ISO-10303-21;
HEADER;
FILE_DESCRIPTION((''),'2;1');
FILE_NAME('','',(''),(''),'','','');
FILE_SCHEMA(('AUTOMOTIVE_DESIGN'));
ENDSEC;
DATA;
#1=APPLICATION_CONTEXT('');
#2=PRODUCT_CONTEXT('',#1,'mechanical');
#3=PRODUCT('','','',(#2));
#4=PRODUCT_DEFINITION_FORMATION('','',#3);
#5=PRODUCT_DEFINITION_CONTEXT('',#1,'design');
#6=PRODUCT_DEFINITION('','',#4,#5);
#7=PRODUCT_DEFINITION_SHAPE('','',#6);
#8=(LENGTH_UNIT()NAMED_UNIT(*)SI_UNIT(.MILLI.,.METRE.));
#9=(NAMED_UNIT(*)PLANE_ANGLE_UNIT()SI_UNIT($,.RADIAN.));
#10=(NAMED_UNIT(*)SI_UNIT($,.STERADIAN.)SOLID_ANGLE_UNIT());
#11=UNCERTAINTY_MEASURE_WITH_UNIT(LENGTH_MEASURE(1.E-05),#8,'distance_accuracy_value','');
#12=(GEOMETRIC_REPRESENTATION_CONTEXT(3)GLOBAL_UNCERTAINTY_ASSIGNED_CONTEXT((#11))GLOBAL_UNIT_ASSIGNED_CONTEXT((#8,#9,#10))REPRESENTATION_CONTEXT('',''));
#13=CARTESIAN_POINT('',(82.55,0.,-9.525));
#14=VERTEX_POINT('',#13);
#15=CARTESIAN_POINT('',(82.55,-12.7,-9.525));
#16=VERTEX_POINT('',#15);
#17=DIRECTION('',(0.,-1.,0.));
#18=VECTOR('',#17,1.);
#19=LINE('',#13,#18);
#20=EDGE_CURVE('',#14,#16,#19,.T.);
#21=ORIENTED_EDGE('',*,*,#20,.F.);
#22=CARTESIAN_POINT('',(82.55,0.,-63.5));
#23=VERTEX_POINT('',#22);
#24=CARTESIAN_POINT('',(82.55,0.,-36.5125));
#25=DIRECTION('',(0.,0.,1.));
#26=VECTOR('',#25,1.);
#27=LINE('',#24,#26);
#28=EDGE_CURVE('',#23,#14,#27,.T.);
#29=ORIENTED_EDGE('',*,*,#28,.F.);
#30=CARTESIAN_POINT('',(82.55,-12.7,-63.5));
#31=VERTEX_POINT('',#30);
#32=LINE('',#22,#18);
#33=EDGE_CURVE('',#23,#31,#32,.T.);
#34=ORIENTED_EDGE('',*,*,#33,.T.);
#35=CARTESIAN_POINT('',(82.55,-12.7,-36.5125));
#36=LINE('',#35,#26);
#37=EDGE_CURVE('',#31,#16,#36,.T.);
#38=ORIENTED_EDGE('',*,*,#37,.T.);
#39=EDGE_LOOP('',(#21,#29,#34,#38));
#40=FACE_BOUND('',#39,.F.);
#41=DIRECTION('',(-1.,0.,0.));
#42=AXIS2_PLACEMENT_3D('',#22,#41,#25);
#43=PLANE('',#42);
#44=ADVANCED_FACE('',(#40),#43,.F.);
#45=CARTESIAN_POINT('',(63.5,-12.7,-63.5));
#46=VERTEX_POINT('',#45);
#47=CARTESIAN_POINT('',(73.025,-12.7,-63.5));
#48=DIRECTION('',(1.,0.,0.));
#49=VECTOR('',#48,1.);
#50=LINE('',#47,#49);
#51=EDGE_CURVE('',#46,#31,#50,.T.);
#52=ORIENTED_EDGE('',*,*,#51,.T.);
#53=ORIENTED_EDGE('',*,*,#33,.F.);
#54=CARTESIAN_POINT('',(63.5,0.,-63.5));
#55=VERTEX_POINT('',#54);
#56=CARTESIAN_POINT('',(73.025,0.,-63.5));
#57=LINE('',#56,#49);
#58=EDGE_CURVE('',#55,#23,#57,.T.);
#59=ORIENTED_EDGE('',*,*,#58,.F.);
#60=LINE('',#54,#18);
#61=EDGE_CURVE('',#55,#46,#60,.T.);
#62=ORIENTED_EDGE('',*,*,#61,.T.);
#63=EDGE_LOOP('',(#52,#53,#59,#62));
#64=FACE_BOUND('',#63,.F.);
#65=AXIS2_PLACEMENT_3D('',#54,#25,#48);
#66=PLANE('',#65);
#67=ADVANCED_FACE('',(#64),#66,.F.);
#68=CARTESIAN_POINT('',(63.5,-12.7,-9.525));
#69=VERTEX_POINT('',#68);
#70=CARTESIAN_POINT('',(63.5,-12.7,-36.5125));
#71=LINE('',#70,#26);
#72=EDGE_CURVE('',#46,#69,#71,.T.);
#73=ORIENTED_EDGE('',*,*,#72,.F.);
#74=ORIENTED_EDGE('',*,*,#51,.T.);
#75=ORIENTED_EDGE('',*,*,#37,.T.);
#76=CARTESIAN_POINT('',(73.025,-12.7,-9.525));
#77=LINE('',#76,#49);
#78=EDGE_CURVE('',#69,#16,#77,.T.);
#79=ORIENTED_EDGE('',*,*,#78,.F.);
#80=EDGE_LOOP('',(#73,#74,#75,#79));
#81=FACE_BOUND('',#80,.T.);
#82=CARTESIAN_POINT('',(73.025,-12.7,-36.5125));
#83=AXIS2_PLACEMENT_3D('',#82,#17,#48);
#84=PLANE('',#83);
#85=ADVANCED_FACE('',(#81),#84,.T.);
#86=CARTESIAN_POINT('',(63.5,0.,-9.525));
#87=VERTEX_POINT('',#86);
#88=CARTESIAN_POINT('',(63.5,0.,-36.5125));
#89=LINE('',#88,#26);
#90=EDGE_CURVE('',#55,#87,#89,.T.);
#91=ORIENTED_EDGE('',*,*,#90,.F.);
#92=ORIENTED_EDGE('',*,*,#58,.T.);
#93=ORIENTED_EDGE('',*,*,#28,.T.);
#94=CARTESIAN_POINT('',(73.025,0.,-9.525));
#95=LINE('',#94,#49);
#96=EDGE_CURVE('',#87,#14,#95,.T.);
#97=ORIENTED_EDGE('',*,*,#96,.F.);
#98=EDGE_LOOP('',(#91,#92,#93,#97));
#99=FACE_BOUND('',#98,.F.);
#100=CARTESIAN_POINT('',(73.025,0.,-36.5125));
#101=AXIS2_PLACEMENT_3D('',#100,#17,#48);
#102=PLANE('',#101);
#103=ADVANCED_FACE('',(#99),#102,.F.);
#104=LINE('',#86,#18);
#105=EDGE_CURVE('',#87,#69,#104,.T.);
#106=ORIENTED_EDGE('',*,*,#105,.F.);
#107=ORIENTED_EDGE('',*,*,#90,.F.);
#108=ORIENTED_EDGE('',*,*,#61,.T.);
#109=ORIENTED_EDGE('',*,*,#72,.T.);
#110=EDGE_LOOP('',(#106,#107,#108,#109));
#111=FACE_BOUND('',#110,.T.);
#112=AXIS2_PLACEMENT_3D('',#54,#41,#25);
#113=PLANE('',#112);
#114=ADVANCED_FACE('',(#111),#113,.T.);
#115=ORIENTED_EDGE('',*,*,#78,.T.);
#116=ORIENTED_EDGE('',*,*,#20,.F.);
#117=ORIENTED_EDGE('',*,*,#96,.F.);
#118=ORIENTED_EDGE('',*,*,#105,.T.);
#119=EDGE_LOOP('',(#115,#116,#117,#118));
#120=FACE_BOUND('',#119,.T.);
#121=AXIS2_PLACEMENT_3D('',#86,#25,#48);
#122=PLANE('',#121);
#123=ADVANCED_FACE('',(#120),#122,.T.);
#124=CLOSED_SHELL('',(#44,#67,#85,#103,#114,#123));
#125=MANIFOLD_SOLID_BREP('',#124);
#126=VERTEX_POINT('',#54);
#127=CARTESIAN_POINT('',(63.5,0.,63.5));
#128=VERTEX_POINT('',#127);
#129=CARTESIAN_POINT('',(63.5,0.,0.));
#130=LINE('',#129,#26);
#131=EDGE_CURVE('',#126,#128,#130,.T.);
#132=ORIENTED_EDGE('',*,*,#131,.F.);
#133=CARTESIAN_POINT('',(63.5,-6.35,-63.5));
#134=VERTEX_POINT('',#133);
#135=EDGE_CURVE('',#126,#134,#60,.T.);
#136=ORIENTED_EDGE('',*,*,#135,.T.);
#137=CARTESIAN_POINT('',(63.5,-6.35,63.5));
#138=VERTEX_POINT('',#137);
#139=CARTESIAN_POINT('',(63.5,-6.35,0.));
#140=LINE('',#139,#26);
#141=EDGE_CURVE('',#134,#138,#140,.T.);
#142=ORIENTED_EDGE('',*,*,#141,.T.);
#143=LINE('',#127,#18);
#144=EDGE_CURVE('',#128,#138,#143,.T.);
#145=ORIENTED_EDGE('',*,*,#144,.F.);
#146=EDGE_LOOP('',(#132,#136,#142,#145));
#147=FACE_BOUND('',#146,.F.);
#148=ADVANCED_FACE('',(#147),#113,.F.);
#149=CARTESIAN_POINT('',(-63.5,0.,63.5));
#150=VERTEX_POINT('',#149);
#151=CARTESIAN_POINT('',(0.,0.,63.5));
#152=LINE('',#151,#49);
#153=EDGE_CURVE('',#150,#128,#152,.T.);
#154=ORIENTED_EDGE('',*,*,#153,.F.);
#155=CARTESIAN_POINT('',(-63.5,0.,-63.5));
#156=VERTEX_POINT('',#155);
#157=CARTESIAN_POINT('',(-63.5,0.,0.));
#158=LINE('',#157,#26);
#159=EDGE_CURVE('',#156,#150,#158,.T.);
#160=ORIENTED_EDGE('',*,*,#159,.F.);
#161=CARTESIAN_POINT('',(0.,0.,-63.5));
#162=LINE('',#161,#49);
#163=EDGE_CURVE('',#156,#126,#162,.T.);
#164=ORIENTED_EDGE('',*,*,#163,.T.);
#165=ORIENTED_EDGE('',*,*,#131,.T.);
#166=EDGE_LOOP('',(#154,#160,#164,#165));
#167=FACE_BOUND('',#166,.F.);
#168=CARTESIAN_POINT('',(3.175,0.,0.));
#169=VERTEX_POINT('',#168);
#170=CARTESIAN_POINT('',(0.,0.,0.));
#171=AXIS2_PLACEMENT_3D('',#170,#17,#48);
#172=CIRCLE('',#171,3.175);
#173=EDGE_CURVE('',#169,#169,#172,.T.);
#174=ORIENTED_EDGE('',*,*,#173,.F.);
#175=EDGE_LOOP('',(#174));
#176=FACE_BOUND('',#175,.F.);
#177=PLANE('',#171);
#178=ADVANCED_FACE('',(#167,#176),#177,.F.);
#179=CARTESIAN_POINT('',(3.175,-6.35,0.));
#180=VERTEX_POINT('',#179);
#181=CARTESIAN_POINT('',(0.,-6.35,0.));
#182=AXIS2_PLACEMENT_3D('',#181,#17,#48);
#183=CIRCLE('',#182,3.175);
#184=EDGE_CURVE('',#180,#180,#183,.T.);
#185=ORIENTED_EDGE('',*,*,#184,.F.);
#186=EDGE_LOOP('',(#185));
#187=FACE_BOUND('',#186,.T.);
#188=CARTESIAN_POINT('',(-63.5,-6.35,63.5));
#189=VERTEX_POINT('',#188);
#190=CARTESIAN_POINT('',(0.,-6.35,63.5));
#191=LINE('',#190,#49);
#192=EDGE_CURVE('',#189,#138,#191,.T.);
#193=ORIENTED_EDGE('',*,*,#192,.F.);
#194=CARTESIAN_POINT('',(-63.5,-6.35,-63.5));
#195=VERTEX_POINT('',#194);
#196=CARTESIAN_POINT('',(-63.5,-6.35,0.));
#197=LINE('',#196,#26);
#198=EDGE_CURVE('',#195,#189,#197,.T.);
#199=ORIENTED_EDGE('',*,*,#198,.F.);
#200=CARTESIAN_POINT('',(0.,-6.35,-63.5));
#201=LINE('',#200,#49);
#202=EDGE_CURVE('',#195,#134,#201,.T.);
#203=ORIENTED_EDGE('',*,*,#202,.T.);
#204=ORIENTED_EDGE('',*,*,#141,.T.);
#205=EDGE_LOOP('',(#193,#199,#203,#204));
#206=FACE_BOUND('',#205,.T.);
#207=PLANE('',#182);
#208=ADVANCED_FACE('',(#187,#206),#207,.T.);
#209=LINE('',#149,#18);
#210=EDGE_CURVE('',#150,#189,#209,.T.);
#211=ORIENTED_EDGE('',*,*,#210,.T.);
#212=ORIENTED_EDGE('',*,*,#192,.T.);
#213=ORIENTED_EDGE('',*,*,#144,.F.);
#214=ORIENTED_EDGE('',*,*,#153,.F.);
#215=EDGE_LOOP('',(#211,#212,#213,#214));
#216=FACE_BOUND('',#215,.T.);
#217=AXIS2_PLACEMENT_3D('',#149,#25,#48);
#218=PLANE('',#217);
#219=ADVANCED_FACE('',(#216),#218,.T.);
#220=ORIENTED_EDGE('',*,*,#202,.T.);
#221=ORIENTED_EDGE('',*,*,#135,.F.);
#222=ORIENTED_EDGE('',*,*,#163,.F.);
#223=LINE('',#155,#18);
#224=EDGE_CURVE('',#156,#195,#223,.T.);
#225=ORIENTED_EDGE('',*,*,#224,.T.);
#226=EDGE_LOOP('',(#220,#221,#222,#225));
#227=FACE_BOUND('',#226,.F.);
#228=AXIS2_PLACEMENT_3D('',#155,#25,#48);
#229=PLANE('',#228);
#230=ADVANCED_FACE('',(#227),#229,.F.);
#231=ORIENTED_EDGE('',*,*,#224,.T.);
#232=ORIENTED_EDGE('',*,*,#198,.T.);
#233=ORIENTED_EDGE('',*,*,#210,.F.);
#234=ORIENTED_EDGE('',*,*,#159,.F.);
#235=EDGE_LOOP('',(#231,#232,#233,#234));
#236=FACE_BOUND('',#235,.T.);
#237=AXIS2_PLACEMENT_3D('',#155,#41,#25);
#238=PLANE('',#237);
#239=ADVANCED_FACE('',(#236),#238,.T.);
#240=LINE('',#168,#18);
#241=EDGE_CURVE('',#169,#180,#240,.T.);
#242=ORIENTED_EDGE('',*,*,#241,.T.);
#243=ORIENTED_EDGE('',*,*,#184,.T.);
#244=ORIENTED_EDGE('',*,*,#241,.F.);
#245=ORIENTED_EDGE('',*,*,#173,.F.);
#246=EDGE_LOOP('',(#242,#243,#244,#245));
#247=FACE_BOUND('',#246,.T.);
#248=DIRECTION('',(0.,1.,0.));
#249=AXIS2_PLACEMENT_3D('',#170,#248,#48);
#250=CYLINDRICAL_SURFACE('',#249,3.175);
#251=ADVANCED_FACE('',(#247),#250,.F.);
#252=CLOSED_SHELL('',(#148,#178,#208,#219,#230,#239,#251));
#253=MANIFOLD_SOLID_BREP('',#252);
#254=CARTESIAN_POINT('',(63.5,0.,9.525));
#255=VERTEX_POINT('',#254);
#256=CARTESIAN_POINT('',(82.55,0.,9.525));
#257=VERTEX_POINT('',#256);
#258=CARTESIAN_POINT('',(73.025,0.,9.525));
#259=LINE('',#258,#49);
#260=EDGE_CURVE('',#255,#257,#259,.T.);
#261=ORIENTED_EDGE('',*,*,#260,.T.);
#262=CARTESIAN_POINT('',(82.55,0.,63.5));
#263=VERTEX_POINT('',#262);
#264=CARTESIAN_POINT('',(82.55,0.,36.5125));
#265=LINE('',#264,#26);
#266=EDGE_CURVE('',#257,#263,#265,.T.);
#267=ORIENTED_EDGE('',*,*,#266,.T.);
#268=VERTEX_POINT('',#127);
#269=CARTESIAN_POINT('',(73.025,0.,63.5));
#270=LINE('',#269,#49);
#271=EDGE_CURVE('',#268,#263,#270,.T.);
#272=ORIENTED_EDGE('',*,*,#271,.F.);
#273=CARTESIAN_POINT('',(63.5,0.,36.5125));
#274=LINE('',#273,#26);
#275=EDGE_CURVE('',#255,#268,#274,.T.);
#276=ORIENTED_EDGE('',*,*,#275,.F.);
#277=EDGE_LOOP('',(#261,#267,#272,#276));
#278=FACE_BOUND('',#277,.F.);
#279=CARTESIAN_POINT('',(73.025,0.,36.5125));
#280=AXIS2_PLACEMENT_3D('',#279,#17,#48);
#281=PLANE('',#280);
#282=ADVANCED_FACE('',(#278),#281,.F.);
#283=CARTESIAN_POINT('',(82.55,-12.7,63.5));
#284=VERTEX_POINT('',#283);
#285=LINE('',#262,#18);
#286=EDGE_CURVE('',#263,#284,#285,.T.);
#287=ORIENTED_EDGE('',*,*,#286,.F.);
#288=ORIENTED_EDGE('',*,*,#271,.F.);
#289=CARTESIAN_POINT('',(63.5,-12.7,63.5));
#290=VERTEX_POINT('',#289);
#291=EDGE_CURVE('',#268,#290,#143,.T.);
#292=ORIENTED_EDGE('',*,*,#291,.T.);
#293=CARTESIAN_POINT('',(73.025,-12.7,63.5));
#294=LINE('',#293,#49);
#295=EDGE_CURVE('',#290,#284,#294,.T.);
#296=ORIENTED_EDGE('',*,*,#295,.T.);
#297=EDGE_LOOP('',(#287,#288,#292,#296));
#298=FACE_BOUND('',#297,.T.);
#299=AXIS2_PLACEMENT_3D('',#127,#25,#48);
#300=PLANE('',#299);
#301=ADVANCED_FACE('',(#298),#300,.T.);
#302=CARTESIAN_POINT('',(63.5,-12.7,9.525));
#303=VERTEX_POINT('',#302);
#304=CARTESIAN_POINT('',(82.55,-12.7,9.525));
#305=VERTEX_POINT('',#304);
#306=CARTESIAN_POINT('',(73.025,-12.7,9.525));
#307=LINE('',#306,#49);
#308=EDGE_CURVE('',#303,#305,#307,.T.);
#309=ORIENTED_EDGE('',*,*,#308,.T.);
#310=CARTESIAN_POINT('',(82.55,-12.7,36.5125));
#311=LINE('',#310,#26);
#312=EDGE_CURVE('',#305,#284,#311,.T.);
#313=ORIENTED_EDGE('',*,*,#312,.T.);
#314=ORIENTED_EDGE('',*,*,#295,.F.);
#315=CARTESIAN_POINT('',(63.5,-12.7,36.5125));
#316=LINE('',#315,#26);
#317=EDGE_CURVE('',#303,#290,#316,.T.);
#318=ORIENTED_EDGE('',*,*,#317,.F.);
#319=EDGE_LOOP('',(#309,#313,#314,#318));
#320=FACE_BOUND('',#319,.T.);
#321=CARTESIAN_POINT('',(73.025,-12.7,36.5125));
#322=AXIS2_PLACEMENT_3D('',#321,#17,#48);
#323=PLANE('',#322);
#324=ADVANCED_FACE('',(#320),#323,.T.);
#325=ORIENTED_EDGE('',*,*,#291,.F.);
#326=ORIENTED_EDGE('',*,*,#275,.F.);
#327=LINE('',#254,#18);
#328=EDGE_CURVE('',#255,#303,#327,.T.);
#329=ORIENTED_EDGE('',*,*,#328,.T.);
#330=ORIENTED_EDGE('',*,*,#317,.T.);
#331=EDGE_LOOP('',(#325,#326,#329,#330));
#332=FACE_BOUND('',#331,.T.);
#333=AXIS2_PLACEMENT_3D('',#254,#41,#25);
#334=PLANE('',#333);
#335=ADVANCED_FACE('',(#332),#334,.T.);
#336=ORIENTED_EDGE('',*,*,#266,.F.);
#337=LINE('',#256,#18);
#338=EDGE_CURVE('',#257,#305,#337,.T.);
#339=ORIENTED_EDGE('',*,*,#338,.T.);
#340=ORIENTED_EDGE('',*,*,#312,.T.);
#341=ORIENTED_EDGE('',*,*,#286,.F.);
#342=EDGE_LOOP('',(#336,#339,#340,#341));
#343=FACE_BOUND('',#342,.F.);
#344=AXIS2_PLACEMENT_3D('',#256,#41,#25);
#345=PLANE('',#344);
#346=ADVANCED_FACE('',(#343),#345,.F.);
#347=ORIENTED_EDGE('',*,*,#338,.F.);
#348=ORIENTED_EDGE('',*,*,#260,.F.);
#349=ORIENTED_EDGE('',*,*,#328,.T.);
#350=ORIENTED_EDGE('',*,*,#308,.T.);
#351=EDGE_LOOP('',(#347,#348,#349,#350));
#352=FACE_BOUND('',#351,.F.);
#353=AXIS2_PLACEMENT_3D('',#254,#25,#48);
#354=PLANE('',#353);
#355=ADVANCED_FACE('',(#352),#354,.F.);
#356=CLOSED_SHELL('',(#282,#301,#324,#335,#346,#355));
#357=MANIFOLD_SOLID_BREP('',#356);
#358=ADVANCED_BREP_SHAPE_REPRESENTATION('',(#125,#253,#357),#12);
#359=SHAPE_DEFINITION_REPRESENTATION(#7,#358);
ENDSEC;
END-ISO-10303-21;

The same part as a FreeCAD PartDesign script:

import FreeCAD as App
import Part
import Sketcher
Q = App.Units.Quantity


def add_polygon(sketch, points):
    """Adds a closed chain of lines whose ends are joined by coincident constraints."""
    first, n = sketch.GeometryCount, len(points)
    for a, b in zip(points, points[1:] + points[:1]):
        sketch.addGeometry(Part.LineSegment(App.Vector(*a, 0), App.Vector(*b, 0)), False)
    for i in range(n):
        sketch.addConstraint(Sketcher.Constraint("Coincident", first + i, 2, first + (i + 1) % n, 1))

doc = App.newDocument("Part")
body = doc.addObject("PartDesign::Body", "Body")
body.AllowCompound = True

# Sketch on XZ plane
sketch1 = doc.addObject("Sketcher::SketchObject", "Sketch")
body.addObject(sketch1)
sketch1.AttachmentSupport = (doc.XZ_Plane, [""])
sketch1.MapMode = "FlatFace"
add_polygon(sketch1, [(64, -10), (64, -64), (83, -64), (83, -10)])  # lines 0-3
add_polygon(sketch1, [(64, 64), (64, 10), (83, 10), (83, 64)])  # lines 4-7
sketch1.addConstraint(Sketcher.Constraint("Vertical", 0))
sketch1.addConstraint(Sketcher.Constraint("Horizontal", 1))
sketch1.addConstraint(Sketcher.Constraint("Vertical", 2))
sketch1.addConstraint(Sketcher.Constraint("Horizontal", 3))
sketch1.addConstraint(Sketcher.Constraint("Vertical", 4))
sketch1.addConstraint(Sketcher.Constraint("Horizontal", 5))
sketch1.addConstraint(Sketcher.Constraint("Vertical", 6))
sketch1.addConstraint(Sketcher.Constraint("Horizontal", 7))
sketch1.addConstraint(Sketcher.Constraint("Symmetric", 3, 2, 4, 2, -1))
sketch1.addConstraint(Sketcher.Constraint("Symmetric", 1, 2, 6, 2, -1))
sketch1.addConstraint(Sketcher.Constraint("DistanceY", 1, 2, 6, 2, Q("5 in")))
sketch1.addConstraint(Sketcher.Constraint("DistanceX", 1, 1, 1, 2, Q("0.75 in")))
sketch1.addConstraint(Sketcher.Constraint("DistanceX", -1, 1, 0, 2, Q("2.5 in")))
sketch1.addConstraint(Sketcher.Constraint("DistanceY", 0, 2, 0, 1, Q("2.125 in")))
pad1 = doc.addObject("PartDesign::Pad", "Pad")
body.addObject(pad1)
pad1.Profile = sketch1
pad1.Length = Q("0.5 in")
body2 = doc.addObject("PartDesign::Body", "Body001")

# Sketch on XZ plane
sketch2 = doc.addObject("Sketcher::SketchObject", "Sketch001")
body2.addObject(sketch2)
sketch2.AttachmentSupport = (doc.getObject("XZ_Plane001"), [""])
sketch2.MapMode = "FlatFace"
add_polygon(sketch2, [(-63.5, 63.5), (-63.5, -63.5), (63.5, -63.5), (63.5, 63.5)])  # lines 0-3
sketch2.addGeometry(Part.Circle(App.Vector(0, 0, 0), App.Vector(0, 0, 1), 3.2), False)  # 4
sketch2.addConstraint(Sketcher.Constraint("Vertical", 0))
sketch2.addConstraint(Sketcher.Constraint("Horizontal", 1))
sketch2.addConstraint(Sketcher.Constraint("Vertical", 2))
sketch2.addConstraint(Sketcher.Constraint("Horizontal", 3))
sketch2.addConstraint(Sketcher.Constraint("Coincident", 4, 3, -1, 1))
sketch2.addConstraint(Sketcher.Constraint("Symmetric", 0, 2, 2, 2, -1, 1))
sketch2.addConstraint(Sketcher.Constraint("Equal", 3, 0))
sketch2.addConstraint(Sketcher.Constraint("Diameter", 4, Q("0.25 in")))
sketch2.addConstraint(Sketcher.Constraint("DistanceX", 1, 1, 1, 2, Q("5 in")))
pad2 = doc.addObject("PartDesign::Pad", "Pad001")
body2.addObject(pad2)
pad2.Profile = sketch2
pad2.Length = Q("0.25 in")

doc.recompute()
